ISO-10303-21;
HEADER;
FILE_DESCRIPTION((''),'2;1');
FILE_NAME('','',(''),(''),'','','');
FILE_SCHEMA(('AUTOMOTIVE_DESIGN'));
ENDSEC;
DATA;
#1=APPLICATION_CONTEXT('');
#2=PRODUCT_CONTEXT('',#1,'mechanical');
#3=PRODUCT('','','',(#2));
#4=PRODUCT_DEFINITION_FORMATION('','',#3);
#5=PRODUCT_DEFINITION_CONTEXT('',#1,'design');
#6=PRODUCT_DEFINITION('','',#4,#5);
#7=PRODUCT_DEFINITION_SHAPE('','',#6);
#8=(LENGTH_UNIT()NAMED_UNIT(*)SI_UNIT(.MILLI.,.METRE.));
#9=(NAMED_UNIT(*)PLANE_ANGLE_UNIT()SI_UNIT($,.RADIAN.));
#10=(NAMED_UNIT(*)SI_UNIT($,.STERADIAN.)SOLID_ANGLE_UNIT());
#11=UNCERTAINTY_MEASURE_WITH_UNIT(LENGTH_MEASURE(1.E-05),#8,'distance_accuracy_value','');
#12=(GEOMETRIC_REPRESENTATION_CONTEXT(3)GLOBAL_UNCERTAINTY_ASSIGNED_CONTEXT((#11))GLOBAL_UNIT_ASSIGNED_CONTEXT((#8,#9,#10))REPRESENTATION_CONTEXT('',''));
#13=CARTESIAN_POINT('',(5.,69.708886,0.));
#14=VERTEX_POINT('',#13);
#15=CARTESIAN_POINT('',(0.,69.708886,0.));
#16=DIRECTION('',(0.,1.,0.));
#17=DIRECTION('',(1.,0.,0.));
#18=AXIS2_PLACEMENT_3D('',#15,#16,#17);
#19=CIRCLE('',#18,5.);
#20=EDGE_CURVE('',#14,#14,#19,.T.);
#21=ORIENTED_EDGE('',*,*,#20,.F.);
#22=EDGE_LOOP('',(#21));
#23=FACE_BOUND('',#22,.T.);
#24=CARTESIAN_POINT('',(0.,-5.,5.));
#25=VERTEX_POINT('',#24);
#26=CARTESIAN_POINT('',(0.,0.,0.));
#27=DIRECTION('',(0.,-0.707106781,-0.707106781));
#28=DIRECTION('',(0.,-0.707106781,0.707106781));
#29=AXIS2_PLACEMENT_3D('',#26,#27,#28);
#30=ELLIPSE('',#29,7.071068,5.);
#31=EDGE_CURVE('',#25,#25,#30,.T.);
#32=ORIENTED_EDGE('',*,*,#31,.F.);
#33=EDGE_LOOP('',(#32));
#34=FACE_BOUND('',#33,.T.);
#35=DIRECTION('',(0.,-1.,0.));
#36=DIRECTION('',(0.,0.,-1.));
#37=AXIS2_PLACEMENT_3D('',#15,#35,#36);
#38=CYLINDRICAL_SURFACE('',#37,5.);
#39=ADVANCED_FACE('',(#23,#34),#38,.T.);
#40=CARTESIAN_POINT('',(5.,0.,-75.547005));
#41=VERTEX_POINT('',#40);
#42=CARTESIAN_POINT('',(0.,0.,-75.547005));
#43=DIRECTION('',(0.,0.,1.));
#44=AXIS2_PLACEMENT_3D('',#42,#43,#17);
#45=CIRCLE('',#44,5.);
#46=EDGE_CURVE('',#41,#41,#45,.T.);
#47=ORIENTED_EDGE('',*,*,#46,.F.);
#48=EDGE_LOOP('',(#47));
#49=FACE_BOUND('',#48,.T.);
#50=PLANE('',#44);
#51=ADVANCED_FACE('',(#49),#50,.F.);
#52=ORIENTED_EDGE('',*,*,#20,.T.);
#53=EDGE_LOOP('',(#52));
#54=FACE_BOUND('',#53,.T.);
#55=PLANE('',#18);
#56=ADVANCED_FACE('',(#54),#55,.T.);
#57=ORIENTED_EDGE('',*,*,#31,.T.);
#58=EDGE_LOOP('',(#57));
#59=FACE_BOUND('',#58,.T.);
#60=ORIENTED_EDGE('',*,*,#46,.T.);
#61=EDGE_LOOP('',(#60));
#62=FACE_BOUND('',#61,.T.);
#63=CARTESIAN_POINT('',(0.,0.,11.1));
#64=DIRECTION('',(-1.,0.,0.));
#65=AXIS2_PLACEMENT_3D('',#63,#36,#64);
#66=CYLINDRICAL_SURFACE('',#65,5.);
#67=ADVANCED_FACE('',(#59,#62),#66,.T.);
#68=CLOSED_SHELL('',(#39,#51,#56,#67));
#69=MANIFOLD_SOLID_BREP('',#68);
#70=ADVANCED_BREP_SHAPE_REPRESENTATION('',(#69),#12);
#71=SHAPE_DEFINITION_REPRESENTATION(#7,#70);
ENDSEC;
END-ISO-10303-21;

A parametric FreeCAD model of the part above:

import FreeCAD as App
import Part
import Sketcher

V = App.Vector
Q = App.Units.Quantity

doc = App.newDocument("Part")
body = doc.addObject("PartDesign::Body", "Body")

sketch1 = body.newObject("Sketcher::SketchObject", "Sketch")
sketch1.AttachmentSupport = (doc.getObject("XZ_Plane"), [""])
sketch1.MapMode = "FlatFace"
sketch1.AttachmentOffset = App.Placement(V(0, 0, -69.708886), App.Rotation())
sketch1.addGeometry(Part.Circle(V(0, 0, 0), V(0, 0, 1), 5), False)
sketch1.addConstraint(Sketcher.Constraint("Coincident", 0, 3, -1, 1))
sketch1.addConstraint(Sketcher.Constraint("Diameter", 0, Q("10 mm")))

sketch2 = body.newObject("Sketcher::SketchObject", "Sketch001")
sketch2.AttachmentSupport = (doc.getObject("YZ_Plane"), [""])
sketch2.MapMode = "FlatFace"
sketch2.addGeometry(Part.LineSegment(V(70, 0, 0), V(0, 0, 0)), False)
sketch2.addGeometry(Part.LineSegment(V(0, 0, 0), V(0, -76, 0)), False)
sketch2.addConstraint(Sketcher.Constraint("Coincident", 0, 2, 1, 1))
sketch2.addConstraint(Sketcher.Constraint("Horizontal", 0))
sketch2.addConstraint(Sketcher.Constraint("Vertical", 1))
sketch2.addConstraint(Sketcher.Constraint("Coincident", 0, 2, -1, 1))
sketch2.addConstraint(Sketcher.Constraint("DistanceX", 0, 2, 0, 1, Q("69.708886 mm")))
sketch2.addConstraint(Sketcher.Constraint("DistanceY", 1, 2, 1, 1, Q("75.547005 mm")))
doc.recompute()

additivepipe = body.newObject("PartDesign::AdditivePipe", "AdditivePipe")
additivepipe.Profile = sketch1
additivepipe.Spine = (sketch2, ["Edge1", "Edge2"])
additivepipe.Transition = "Right corner"

doc.recompute()
